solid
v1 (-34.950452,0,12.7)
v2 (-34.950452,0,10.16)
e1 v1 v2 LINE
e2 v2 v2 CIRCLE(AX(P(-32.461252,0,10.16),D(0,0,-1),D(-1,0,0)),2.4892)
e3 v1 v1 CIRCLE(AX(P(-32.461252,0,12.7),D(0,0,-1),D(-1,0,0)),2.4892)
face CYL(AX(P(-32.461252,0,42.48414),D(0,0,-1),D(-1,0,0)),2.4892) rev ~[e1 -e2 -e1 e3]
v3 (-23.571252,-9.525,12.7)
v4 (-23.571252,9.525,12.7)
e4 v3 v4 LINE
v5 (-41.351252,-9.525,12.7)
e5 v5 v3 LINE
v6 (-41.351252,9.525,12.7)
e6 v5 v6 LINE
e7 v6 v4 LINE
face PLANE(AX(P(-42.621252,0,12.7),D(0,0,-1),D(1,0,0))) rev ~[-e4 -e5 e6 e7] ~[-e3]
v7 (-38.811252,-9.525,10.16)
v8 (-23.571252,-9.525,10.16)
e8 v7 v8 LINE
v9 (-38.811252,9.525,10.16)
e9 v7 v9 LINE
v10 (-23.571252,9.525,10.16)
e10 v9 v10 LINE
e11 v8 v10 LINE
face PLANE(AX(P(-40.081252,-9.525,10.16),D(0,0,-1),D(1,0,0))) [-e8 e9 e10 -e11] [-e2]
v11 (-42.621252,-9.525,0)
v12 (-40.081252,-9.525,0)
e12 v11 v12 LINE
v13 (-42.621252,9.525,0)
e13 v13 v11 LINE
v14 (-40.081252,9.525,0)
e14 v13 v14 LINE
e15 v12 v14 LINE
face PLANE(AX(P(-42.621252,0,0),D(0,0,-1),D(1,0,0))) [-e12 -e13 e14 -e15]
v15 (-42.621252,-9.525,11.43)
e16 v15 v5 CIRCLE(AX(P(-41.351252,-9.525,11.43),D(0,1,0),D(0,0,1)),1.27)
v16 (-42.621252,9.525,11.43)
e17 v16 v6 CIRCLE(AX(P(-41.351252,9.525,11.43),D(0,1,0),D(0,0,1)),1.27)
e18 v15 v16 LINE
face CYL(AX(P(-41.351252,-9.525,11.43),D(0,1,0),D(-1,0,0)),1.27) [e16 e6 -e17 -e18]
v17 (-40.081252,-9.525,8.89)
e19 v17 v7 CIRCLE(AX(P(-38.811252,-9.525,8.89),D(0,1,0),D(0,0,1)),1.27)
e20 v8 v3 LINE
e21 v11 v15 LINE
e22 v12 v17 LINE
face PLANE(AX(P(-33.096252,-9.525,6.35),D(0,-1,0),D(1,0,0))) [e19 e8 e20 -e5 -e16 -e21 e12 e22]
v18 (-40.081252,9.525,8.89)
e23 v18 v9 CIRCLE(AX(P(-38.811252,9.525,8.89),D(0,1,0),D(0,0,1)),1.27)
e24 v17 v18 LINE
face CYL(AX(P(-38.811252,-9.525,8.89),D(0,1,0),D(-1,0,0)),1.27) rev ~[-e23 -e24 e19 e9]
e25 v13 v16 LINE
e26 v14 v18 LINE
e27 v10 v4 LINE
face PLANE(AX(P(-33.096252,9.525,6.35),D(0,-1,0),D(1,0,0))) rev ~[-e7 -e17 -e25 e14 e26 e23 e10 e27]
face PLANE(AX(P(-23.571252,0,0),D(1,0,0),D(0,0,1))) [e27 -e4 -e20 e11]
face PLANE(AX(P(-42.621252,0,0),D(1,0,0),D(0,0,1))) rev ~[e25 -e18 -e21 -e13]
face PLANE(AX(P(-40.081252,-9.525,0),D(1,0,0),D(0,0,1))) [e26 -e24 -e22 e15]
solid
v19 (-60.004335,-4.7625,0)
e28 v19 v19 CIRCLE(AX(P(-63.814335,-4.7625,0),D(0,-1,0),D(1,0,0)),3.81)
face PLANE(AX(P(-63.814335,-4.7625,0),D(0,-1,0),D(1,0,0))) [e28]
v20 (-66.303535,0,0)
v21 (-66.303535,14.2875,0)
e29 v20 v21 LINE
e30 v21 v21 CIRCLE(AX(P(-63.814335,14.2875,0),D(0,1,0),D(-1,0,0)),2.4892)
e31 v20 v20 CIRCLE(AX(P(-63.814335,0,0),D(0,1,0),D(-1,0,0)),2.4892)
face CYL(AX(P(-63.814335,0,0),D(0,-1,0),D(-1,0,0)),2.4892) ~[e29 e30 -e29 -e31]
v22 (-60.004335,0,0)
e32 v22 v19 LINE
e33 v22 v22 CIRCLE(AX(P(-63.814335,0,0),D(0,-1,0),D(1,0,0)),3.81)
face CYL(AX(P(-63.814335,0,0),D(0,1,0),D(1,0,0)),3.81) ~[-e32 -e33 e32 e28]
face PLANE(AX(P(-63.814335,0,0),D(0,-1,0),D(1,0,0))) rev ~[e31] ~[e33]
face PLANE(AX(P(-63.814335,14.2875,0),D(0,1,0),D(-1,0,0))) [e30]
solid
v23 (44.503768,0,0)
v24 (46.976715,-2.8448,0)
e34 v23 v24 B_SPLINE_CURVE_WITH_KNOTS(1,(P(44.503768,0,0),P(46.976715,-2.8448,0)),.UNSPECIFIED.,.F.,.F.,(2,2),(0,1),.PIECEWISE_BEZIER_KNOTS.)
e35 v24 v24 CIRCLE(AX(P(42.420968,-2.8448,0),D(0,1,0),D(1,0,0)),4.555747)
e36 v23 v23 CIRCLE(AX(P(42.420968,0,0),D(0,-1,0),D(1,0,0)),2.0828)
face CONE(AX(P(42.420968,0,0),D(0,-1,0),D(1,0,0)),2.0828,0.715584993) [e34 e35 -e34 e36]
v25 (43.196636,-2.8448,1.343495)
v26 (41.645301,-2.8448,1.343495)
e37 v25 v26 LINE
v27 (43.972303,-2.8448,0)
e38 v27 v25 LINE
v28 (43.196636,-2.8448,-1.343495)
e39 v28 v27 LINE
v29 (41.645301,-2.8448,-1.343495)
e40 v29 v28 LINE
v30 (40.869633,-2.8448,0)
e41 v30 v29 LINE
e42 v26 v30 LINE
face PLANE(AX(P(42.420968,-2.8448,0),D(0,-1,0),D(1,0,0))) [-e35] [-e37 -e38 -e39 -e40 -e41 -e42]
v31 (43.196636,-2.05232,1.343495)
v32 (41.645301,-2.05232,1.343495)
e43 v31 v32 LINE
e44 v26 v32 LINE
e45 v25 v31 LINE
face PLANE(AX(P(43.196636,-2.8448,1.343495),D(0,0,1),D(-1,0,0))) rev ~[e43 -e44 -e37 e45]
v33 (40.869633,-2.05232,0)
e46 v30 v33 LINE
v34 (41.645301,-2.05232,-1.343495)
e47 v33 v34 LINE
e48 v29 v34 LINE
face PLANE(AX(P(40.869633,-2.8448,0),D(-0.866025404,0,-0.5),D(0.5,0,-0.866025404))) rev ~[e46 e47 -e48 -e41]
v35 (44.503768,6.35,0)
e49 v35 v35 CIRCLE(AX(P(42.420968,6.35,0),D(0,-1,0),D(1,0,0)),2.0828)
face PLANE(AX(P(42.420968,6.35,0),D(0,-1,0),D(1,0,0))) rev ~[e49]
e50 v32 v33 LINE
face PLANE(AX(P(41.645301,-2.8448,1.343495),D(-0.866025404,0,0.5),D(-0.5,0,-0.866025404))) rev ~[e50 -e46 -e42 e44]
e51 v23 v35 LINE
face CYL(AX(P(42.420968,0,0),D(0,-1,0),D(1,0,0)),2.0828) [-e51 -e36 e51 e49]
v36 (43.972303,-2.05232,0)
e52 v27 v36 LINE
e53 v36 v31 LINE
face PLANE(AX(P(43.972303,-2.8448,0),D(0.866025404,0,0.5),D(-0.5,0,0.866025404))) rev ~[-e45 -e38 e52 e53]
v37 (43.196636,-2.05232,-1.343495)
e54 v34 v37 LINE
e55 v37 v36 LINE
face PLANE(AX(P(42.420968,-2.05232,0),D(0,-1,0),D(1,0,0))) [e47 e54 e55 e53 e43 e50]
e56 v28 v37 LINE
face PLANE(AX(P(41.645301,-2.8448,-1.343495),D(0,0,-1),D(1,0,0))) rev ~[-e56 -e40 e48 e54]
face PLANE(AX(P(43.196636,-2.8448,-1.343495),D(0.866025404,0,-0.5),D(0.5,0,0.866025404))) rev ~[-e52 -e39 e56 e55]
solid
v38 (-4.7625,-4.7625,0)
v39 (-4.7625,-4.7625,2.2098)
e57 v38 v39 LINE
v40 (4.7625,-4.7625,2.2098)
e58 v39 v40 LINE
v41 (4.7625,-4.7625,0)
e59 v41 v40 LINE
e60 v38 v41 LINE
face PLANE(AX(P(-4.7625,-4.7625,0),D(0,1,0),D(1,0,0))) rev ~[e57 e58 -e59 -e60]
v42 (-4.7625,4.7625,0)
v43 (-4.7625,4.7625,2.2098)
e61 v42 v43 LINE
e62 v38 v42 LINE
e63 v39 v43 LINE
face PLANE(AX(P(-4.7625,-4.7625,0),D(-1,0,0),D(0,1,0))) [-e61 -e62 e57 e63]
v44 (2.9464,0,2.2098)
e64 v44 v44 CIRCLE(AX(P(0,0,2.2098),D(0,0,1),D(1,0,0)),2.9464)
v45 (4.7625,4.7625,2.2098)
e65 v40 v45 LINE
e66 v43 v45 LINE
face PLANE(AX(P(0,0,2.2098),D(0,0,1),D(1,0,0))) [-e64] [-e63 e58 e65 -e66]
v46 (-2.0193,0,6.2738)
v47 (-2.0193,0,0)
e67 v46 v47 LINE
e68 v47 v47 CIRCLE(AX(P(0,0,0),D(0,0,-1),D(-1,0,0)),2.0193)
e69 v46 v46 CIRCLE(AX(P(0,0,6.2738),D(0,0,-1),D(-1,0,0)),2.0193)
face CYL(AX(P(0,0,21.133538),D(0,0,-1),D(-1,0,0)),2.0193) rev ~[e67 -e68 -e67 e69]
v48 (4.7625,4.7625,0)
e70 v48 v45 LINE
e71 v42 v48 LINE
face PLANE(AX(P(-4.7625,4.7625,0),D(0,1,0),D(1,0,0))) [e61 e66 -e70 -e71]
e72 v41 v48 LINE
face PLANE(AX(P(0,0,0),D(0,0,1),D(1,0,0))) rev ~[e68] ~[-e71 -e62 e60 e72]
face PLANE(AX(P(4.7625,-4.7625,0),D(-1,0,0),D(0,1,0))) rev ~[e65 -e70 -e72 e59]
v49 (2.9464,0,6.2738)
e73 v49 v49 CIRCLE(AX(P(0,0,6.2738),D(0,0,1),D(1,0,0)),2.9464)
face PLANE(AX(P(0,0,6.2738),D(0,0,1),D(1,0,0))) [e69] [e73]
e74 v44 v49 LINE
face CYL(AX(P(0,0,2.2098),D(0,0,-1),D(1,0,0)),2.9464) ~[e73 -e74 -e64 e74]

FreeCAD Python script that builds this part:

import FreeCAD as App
import Part
import Sketcher
from FreeCAD import Vector
Q = App.Units.Quantity


def edges_at(feature, points):
    """Names of the edges that pass closest to the given points."""
    edges = feature.Shape.Edges
    near = lambda p: min(range(len(edges)), key=lambda i: edges[i].distToShape(Part.Vertex(*p))[0])
    return sorted({f"Edge{near(p) + 1}" for p in points})

doc = App.newDocument("Part")
params = doc.addObject("Spreadsheet::Sheet", "Params")
for row, (alias, value) in enumerate([
    ("sketch1_width", "0.375 in"),
    ("pad1_length", "0.087 in"),
    ("sketch2_diameter", "0.232 in"),
    ("pad2_length", "0.16 in"),
    ("sketch3_diameter", "0.159 in"),
    ("hole_diameter", "0.159 in"),
    ("sketch4_height", "0.5 in"),
    ("sketch4_width", "0.75 in"),
    ("pad3_length", "0.75 in"),
    ("sketch5_height", "0.4 in"),
    ("sketch5_width", "0.65 in"),
    ("fillet_radius", "0.05 in"),
    ("sketch6_diameter", "0.196 in"),
    ("hole2_diameter", "0.196 in"),
    ("sketch7_diameter", "0.3 in"),
    ("pad4_length", "0.1875 in"),
    ("sketch8_diameter", "0.196 in"),
    ("pad5_length", "0.5625 in"),
    ("sketch9_diameter", "0.164 in"),
    ("pad6_length", "0.112 in"),
    ("pad6_taper", "41 deg"),
    ("pad7_length", "0.25 in"),
    ("pocket2_length", "0.0312 in"),
], start=1):
    params.set(f"A{row}", alias)
    params.set(f"B{row}", "=" + value)
    params.setAlias(f"B{row}", alias)

body = doc.addObject("PartDesign::Body", "Body")

sketch1 = body.newObject("Sketcher::SketchObject", "Sketch")
sketch1.AttachmentSupport = (doc.getObject("XY_Plane"), [""])
sketch1.MapMode = "FlatFace"
sketch1.addGeometry(Part.LineSegment(Vector(-5, 5, 0), Vector(-5, -5, 0)), False)
sketch1.addGeometry(Part.LineSegment(Vector(-5, -5, 0), Vector(5, -5, 0)), False)
sketch1.addGeometry(Part.LineSegment(Vector(5, -5, 0), Vector(5, 5, 0)), False)
sketch1.addGeometry(Part.LineSegment(Vector(5, 5, 0), Vector(-5, 5, 0)), False)
sketch1.addConstraint(Sketcher.Constraint("Coincident", 0, 2, 1, 1))
sketch1.addConstraint(Sketcher.Constraint("Coincident", 1, 2, 2, 1))
sketch1.addConstraint(Sketcher.Constraint("Coincident", 2, 2, 3, 1))
sketch1.addConstraint(Sketcher.Constraint("Coincident", 3, 2, 0, 1))
sketch1.addConstraint(Sketcher.Constraint("Vertical", 0))
sketch1.addConstraint(Sketcher.Constraint("Horizontal", 1))
sketch1.addConstraint(Sketcher.Constraint("Vertical", 2))
sketch1.addConstraint(Sketcher.Constraint("Horizontal", 3))
sketch1.addConstraint(Sketcher.Constraint("Symmetric", 0, 2, 2, 2, -1, 1))
sketch1.addConstraint(Sketcher.Constraint("Equal", 3, 0))
sketch1.addConstraint(Sketcher.Constraint("DistanceX", 1, 1, 1, 2, Q("0.375 in")))
sketch1.setExpression("Constraints[10]", "Params.sketch1_width")
pad1 = body.newObject("PartDesign::Pad", "Pad")
pad1.Profile = sketch1
pad1.setExpression("Length", "Params.pad1_length")

sketch2 = body.newObject("Sketcher::SketchObject", "Sketch001")
sketch2.AttachmentSupport = (doc.getObject("XY_Plane"), [""])
sketch2.MapMode = "FlatFace"
sketch2.AttachmentOffset = App.Placement(Vector(0, 0, 0.087 * 25.4), App.Rotation())
sketch2.addGeometry(Part.Circle(Vector(0, 0, 0), Vector(0, 0, 1), 2.9), False)
sketch2.addConstraint(Sketcher.Constraint("Coincident", 0, 3, -1, 1))
sketch2.addConstraint(Sketcher.Constraint("Diameter", 0, Q("0.232 in")))
sketch2.setExpression("Constraints[1]", "Params.sketch2_diameter")
pad2 = body.newObject("PartDesign::Pad", "Pad001")
pad2.Profile = sketch2
pad2.setExpression("Length", "Params.pad2_length")

sketch3 = body.newObject("Sketcher::SketchObject", "Sketch002")
sketch3.AttachmentSupport = (doc.getObject("XY_Plane"), [""])
sketch3.MapMode = "FlatFace"
sketch3.AttachmentOffset = App.Placement(Vector(0, 0, 0.247 * 25.4), App.Rotation())
sketch3.addGeometry(Part.Circle(Vector(0, 0, 0), Vector(0, 0, 1), 2), False)
sketch3.addConstraint(Sketcher.Constraint("Coincident", 0, 3, -1, 1))
sketch3.addConstraint(Sketcher.Constraint("Diameter", 0, Q("0.159 in")))
sketch3.setExpression("Constraints[1]", "Params.sketch3_diameter")
doc.recompute()
hole = body.newObject("PartDesign::Hole", "Hole")
hole.Profile = sketch3
hole.ThreadType = "None"
hole.setExpression("Diameter", "Params.hole_diameter")
hole.DepthType = "ThroughAll"
body2 = doc.addObject("PartDesign::Body", "Body001")

sketch4 = body2.newObject("Sketcher::SketchObject", "Sketch003")
sketch4.AttachmentSupport = (doc.getObject("XZ_Plane001"), [""])
sketch4.MapMode = "FlatFace"
sketch4.addGeometry(Part.LineSegment(Vector(-43, 13, 0), Vector(-43, 0, 0)), False)
sketch4.addGeometry(Part.LineSegment(Vector(-43, 0, 0), Vector(-24, 0, 0)), False)
sketch4.addGeometry(Part.LineSegment(Vector(-24, 0, 0), Vector(-24, 13, 0)), False)
sketch4.addGeometry(Part.LineSegment(Vector(-24, 13, 0), Vector(-43, 13, 0)), False)
sketch4.addConstraint(Sketcher.Constraint("Coincident", 0, 2, 1, 1))
sketch4.addConstraint(Sketcher.Constraint("Coincident", 1, 2, 2, 1))
sketch4.addConstraint(Sketcher.Constraint("Coincident", 2, 2, 3, 1))
sketch4.addConstraint(Sketcher.Constraint("Coincident", 3, 2, 0, 1))
sketch4.addConstraint(Sketcher.Constraint("Vertical", 0))
sketch4.addConstraint(Sketcher.Constraint("Horizontal", 1))
sketch4.addConstraint(Sketcher.Constraint("Vertical", 2))
sketch4.addConstraint(Sketcher.Constraint("Horizontal", 3))
sketch4.addConstraint(Sketcher.Constraint("PointOnObject", 0, 2, -1))
sketch4.addConstraint(Sketcher.Constraint("DistanceY", 0, 2, 0, 1, Q("0.5 in")))
sketch4.addConstraint(Sketcher.Constraint("DistanceX", 1, 1, 1, 2, Q("0.75 in")))
sketch4.addConstraint(Sketcher.Constraint("DistanceX", 0, 2, -1, 1, Q("42.621252 mm")))
sketch4.setExpression("Constraints[9]", "Params.sketch4_height")
sketch4.setExpression("Constraints[10]", "Params.sketch4_width")
pad3 = body2.newObject("PartDesign::Pad", "Pad002")
pad3.Profile = sketch4
pad3.setExpression("Length", "Params.pad3_length")
pad3.Midplane = True

sketch5 = body2.newObject("Sketcher::SketchObject", "Sketch004")
sketch5.AttachmentSupport = (doc.getObject("XZ_Plane001"), [""])
sketch5.MapMode = "FlatFace"
sketch5.AttachmentOffset = App.Placement(Vector(0, 0, 0.375 * 25.4), App.Rotation())
sketch5.addGeometry(Part.LineSegment(Vector(-40, 10, 0), Vector(-40, 0, 0)), False)
sketch5.addGeometry(Part.LineSegment(Vector(-40, 0, 0), Vector(-24, 0, 0)), False)
sketch5.addGeometry(Part.LineSegment(Vector(-24, 0, 0), Vector(-24, 10, 0)), False)
sketch5.addGeometry(Part.LineSegment(Vector(-24, 10, 0), Vector(-40, 10, 0)), False)
sketch5.addConstraint(Sketcher.Constraint("Coincident", 0, 2, 1, 1))
sketch5.addConstraint(Sketcher.Constraint("Coincident", 1, 2, 2, 1))
sketch5.addConstraint(Sketcher.Constraint("Coincident", 2, 2, 3, 1))
sketch5.addConstraint(Sketcher.Constraint("Coincident", 3, 2, 0, 1))
sketch5.addConstraint(Sketcher.Constraint("Vertical", 0))
sketch5.addConstraint(Sketcher.Constraint("Horizontal", 1))
sketch5.addConstraint(Sketcher.Constraint("Vertical", 2))
sketch5.addConstraint(Sketcher.Constraint("Horizontal", 3))
sketch5.addConstraint(Sketcher.Constraint("PointOnObject", 0, 2, -1))
sketch5.addConstraint(Sketcher.Constraint("DistanceY", 0, 2, 0, 1, Q("0.4 in")))
sketch5.addConstraint(Sketcher.Constraint("DistanceX", 1, 1, 1, 2, Q("0.65 in")))
sketch5.addConstraint(Sketcher.Constraint("DistanceX", 0, 2, -1, 1, Q("40.081252 mm")))
sketch5.setExpression("Constraints[9]", "Params.sketch5_height")
sketch5.setExpression("Constraints[10]", "Params.sketch5_width")
pocket1 = body2.newObject("PartDesign::Pocket", "Pocket")
pocket1.Profile = sketch5
pocket1.Type = "ThroughAll"
doc.recompute()

fillet = body2.newObject("PartDesign::Fillet", "Fillet")
fillet.Base = (pocket1, edges_at(pocket1, [(-42.621, 0, 12.7), (-40.081, 0, 10.16)]))
fillet.setExpression("Radius", "Params.fillet_radius")

sketch6 = body2.newObject("Sketcher::SketchObject", "Sketch005")
sketch6.AttachmentSupport = (doc.getObject("XY_Plane001"), [""])
sketch6.MapMode = "FlatFace"
sketch6.AttachmentOffset = App.Placement(Vector(0, 0, 0.5 * 25.4), App.Rotation())
sketch6.addGeometry(Part.Circle(Vector(-32.5, 0, 0), Vector(0, 0, 1), 2.5), False)
sketch6.addConstraint(Sketcher.Constraint("PointOnObject", 0, 3, -1))
sketch6.addConstraint(Sketcher.Constraint("Diameter", 0, Q("0.196 in")))
sketch6.addConstraint(Sketcher.Constraint("DistanceX", 0, 3, -1, 1, Q("32.461252 mm")))
sketch6.setExpression("Constraints[1]", "Params.sketch6_diameter")
doc.recompute()
hole2 = body2.newObject("PartDesign::Hole", "Hole001")
hole2.Profile = sketch6
hole2.ThreadType = "None"
hole2.setExpression("Diameter", "Params.hole2_diameter")
hole2.DepthType = "ThroughAll"
body3 = doc.addObject("PartDesign::Body", "Body002")

sketch7 = body3.newObject("Sketcher::SketchObject", "Sketch006")
sketch7.AttachmentSupport = (doc.getObject("XZ_Plane002"), [""])
sketch7.MapMode = "FlatFace"
sketch7.addGeometry(Part.Circle(Vector(-63.8, 0, 0), Vector(0, 0, 1), 3.8), False)
sketch7.addConstraint(Sketcher.Constraint("PointOnObject", 0, 3, -1))
sketch7.addConstraint(Sketcher.Constraint("Diameter", 0, Q("0.3 in")))
sketch7.addConstraint(Sketcher.Constraint("DistanceX", 0, 3, -1, 1, Q("63.814335 mm")))
sketch7.setExpression("Constraints[1]", "Params.sketch7_diameter")
pad4 = body3.newObject("PartDesign::Pad", "Pad003")
pad4.Profile = sketch7
pad4.setExpression("Length", "Params.pad4_length")

sketch8 = body3.newObject("Sketcher::SketchObject", "Sketch007")
sketch8.AttachmentSupport = (doc.getObject("XZ_Plane002"), [""])
sketch8.MapMode = "FlatFace"
sketch8.addGeometry(Part.Circle(Vector(-63.8, 0, 0), Vector(0, 0, 1), 2.5), False)
sketch8.addConstraint(Sketcher.Constraint("PointOnObject", 0, 3, -1))
sketch8.addConstraint(Sketcher.Constraint("Diameter", 0, Q("0.196 in")))
sketch8.addConstraint(Sketcher.Constraint("DistanceX", 0, 3, -1, 1, Q("63.814335 mm")))
sketch8.setExpression("Constraints[1]", "Params.sketch8_diameter")
pad5 = body3.newObject("PartDesign::Pad", "Pad004")
pad5.Profile = sketch8
pad5.setExpression("Length", "Params.pad5_length")
pad5.Reversed = True
body4 = doc.addObject("PartDesign::Body", "Body003")

sketch9 = body4.newObject("Sketcher::SketchObject", "Sketch008")
sketch9.AttachmentSupport = (doc.getObject("XZ_Plane003"), [""])
sketch9.MapMode = "FlatFace"
sketch9.addGeometry(Part.Circle(Vector(42.4, 0, 0), Vector(0, 0, 1), 2.1), False)
sketch9.addConstraint(Sketcher.Constraint("PointOnObject", 0, 3, -1))
sketch9.addConstraint(Sketcher.Constraint("Diameter", 0, Q("0.164 in")))
sketch9.addConstraint(Sketcher.Constraint("DistanceX", -1, 1, 0, 3, Q("42.420968 mm")))
sketch9.setExpression("Constraints[1]", "Params.sketch9_diameter")
pad6 = body4.newObject("PartDesign::Pad", "Pad005")
pad6.Profile = sketch9
pad6.setExpression("Length", "Params.pad6_length")
pad6.setExpression("TaperAngle", "Params.pad6_taper")
pad7 = body4.newObject("PartDesign::Pad", "Pad006")
pad7.Profile = sketch9
pad7.setExpression("Length", "Params.pad7_length")
pad7.Reversed = True

sketch10 = body4.newObject("Sketcher::SketchObject", "Sketch009")
sketch10.AttachmentSupport = (doc.getObject("XZ_Plane003"), [""])
sketch10.MapMode = "FlatFace"
sketch10.AttachmentOffset = App.Placement(Vector(0, 0, 0.112 * 25.4), App.Rotation())
sketch10.addGeometry(Part.LineSegment(Vector(43.2, -1.3, 0), Vector(44, 0, 0)), False)
sketch10.addGeometry(Part.LineSegment(Vector(44, 0, 0), Vector(43.2, 1.3, 0)), False)
sketch10.addGeometry(Part.LineSegment(Vector(43.2, 1.3, 0), Vector(41.6, 1.3, 0)), False)
sketch10.addGeometry(Part.LineSegment(Vector(41.6, 1.3, 0), Vector(40.9, 0, 0)), False)
sketch10.addGeometry(Part.LineSegment(Vector(40.9, 0, 0), Vector(41.6, -1.3, 0)), False)
sketch10.addGeometry(Part.LineSegment(Vector(41.6, -1.3, 0), Vector(43.2, -1.3, 0)), False)
sketch10.addConstraint(Sketcher.Constraint("Coincident", 0, 2, 1, 1))
sketch10.addConstraint(Sketcher.Constraint("Coincident", 1, 2, 2, 1))
sketch10.addConstraint(Sketcher.Constraint("Coincident", 2, 2, 3, 1))
sketch10.addConstraint(Sketcher.Constraint("Coincident", 3, 2, 4, 1))
sketch10.addConstraint(Sketcher.Constraint("Coincident", 4, 2, 5, 1))
sketch10.addConstraint(Sketcher.Constraint("Coincident", 5, 2, 0, 1))
sketch10.addConstraint(Sketcher.Constraint("Horizontal", 2))
sketch10.addConstraint(Sketcher.Constraint("Horizontal", 5))
sketch10.addConstraint(Sketcher.Constraint("Symmetric", 2, 2, 4, 2, -1))
sketch10.addConstraint(Sketcher.Constraint("PointOnObject", 0, 2, -1))
sketch10.addConstraint(Sketcher.Constraint("PointOnObject", 3, 2, -1))
sketch10.addConstraint(Sketcher.Constraint("Parallel", 0, 3))
sketch10.addConstraint(Sketcher.Constraint("Parallel", 1, 4))
sketch10.addConstraint(Sketcher.Constraint("Angle", 0, Q("60 deg")))
sketch10.addConstraint(Sketcher.Constraint("DistanceX", -1, 1, 2, 2, Q("41.645301 mm")))
sketch10.addConstraint(Sketcher.Constraint("DistanceX", 2, 2, 2, 1, Q("1.551335 mm")))
sketch10.addConstraint(Sketcher.Constraint("DistanceX", 3, 2, 0, 2, Q("3.10267 mm")))
pocket2 = body4.newObject("PartDesign::Pocket", "Pocket001")
pocket2.Profile = sketch10
pocket2.setExpression("Length", "Params.pocket2_length")

doc.recompute()
